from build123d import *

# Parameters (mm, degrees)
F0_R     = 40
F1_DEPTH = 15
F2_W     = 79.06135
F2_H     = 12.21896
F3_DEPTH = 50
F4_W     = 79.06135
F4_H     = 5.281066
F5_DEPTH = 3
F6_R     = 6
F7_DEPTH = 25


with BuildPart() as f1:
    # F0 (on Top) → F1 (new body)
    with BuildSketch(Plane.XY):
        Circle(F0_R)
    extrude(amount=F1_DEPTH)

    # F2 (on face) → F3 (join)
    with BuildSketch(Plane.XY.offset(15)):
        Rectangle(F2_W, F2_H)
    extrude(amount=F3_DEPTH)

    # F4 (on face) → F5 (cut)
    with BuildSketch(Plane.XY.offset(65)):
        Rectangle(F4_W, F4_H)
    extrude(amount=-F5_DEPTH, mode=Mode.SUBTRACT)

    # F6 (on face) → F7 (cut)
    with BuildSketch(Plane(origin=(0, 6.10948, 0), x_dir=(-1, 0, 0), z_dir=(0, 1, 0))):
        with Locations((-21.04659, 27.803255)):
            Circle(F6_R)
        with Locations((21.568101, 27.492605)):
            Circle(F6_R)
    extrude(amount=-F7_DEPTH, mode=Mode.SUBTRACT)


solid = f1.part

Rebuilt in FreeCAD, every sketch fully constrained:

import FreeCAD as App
import Part
import Sketcher
from FreeCAD import Vector

doc = App.newDocument("Part")
body = doc.addObject("PartDesign::Body", "Body")

sketch1 = doc.addObject("Sketcher::SketchObject", "Sketch")
body.addObject(sketch1)
sketch1.AttachmentSupport = (doc.XY_Plane, [""])
sketch1.MapMode = "FlatFace"
sketch1.addGeometry(Part.Circle(Vector(0, 0, 0), Vector(0, 0, 1), 40), False)
sketch1.addConstraint([
    Sketcher.Constraint("Coincident", 0, 3, -1, 1),
    Sketcher.Constraint("Diameter", 0, 80.0),
])
pad1 = doc.addObject("PartDesign::Pad", "Pad")
body.addObject(pad1)
pad1.Profile = sketch1
pad1.Length = 15

sketch2 = doc.addObject("Sketcher::SketchObject", "Sketch001")
body.addObject(sketch2)
sketch2.AttachmentSupport = (doc.XY_Plane, [""])
sketch2.MapMode = "FlatFace"
sketch2.AttachmentOffset = App.Placement(Vector(0, 0, 15), App.Rotation())
sketch2.addGeometry([
    Part.LineSegment(Vector(-39.530675, 6.10948, 0), Vector(-39.530675, -6.10948, 0)),
    Part.LineSegment(Vector(-39.530675, -6.10948, 0), Vector(39.530675, -6.10948, 0)),
    Part.LineSegment(Vector(39.530675, -6.10948, 0), Vector(39.530675, 6.10948, 0)),
    Part.LineSegment(Vector(39.530675, 6.10948, 0), Vector(-39.530675, 6.10948, 0)),
], False)
sketch2.addConstraint([
    Sketcher.Constraint("Coincident", 0, 2, 1, 1),
    Sketcher.Constraint("Coincident", 1, 2, 2, 1),
    Sketcher.Constraint("Coincident", 2, 2, 3, 1),
    Sketcher.Constraint("Coincident", 3, 2, 0, 1),
    Sketcher.Constraint("Vertical", 0),
    Sketcher.Constraint("Horizontal", 1),
    Sketcher.Constraint("Vertical", 2),
    Sketcher.Constraint("Horizontal", 3),
    Sketcher.Constraint("Symmetric", 0, 2, 2, 2, -1, 1),
    Sketcher.Constraint("DistanceX", 1, 1, 1, 2, 79.06135),
    Sketcher.Constraint("DistanceY", 0, 2, 0, 1, 12.21896),
])
pad2 = doc.addObject("PartDesign::Pad", "Pad001")
body.addObject(pad2)
pad2.Profile = sketch2
pad2.Length = 50

sketch3 = doc.addObject("Sketcher::SketchObject", "Sketch002")
body.addObject(sketch3)
sketch3.AttachmentSupport = (doc.XY_Plane, [""])
sketch3.MapMode = "FlatFace"
sketch3.AttachmentOffset = App.Placement(Vector(0, 0, 65), App.Rotation())
sketch3.addGeometry([
    Part.LineSegment(Vector(-39.530675, 2.640533, 0), Vector(-39.530675, -2.640533, 0)),
    Part.LineSegment(Vector(-39.530675, -2.640533, 0), Vector(39.530675, -2.640533, 0)),
    Part.LineSegment(Vector(39.530675, -2.640533, 0), Vector(39.530675, 2.640533, 0)),
    Part.LineSegment(Vector(39.530675, 2.640533, 0), Vector(-39.530675, 2.640533, 0)),
], False)
sketch3.addConstraint([
    Sketcher.Constraint("Coincident", 0, 2, 1, 1),
    Sketcher.Constraint("Coincident", 1, 2, 2, 1),
    Sketcher.Constraint("Coincident", 2, 2, 3, 1),
    Sketcher.Constraint("Coincident", 3, 2, 0, 1),
    Sketcher.Constraint("Vertical", 0),
    Sketcher.Constraint("Horizontal", 1),
    Sketcher.Constraint("Vertical", 2),
    Sketcher.Constraint("Horizontal", 3),
    Sketcher.Constraint("Symmetric", 0, 2, 2, 2, -1, 1),
    Sketcher.Constraint("DistanceX", 1, 1, 1, 2, 79.06135),
    Sketcher.Constraint("DistanceY", 0, 2, 0, 1, 5.281066),
])
pocket1 = doc.addObject("PartDesign::Pocket", "Pocket")
body.addObject(pocket1)
pocket1.Profile = sketch3
pocket1.Length = 3

sketch4 = doc.addObject("Sketcher::SketchObject", "Sketch003")
body.addObject(sketch4)
sketch4.AttachmentSupport = (doc.XZ_Plane, [""])
sketch4.MapMode = "FlatFace"
sketch4.AttachmentOffset = App.Placement(Vector(0, 0, -6.10948), App.Rotation())
sketch4.addGeometry([
    Part.Circle(Vector(21.04659, 27.803255, 0), Vector(0, 0, 1), 6),
    Part.Circle(Vector(-21.568101, 27.492605, 0), Vector(0, 0, 1), 6),
], False)
sketch4.addConstraint([
    Sketcher.Constraint("Equal", 0, 1),
    Sketcher.Constraint("Diameter", 0, 12.0),
    Sketcher.Constraint("DistanceX", 1, 3, -1, 1, 21.568101),
    Sketcher.Constraint("DistanceX", -1, 1, 0, 3, 21.04659),
    Sketcher.Constraint("DistanceY", 1, 3, 0, 3, 0.31065),
    Sketcher.Constraint("DistanceY", -1, 1, 0, 3, 27.803255),
])
pocket2 = doc.addObject("PartDesign::Pocket", "Pocket001")
body.addObject(pocket2)
pocket2.Profile = sketch4
pocket2.Length = 25
pocket2.Reversed = True

doc.recompute()
